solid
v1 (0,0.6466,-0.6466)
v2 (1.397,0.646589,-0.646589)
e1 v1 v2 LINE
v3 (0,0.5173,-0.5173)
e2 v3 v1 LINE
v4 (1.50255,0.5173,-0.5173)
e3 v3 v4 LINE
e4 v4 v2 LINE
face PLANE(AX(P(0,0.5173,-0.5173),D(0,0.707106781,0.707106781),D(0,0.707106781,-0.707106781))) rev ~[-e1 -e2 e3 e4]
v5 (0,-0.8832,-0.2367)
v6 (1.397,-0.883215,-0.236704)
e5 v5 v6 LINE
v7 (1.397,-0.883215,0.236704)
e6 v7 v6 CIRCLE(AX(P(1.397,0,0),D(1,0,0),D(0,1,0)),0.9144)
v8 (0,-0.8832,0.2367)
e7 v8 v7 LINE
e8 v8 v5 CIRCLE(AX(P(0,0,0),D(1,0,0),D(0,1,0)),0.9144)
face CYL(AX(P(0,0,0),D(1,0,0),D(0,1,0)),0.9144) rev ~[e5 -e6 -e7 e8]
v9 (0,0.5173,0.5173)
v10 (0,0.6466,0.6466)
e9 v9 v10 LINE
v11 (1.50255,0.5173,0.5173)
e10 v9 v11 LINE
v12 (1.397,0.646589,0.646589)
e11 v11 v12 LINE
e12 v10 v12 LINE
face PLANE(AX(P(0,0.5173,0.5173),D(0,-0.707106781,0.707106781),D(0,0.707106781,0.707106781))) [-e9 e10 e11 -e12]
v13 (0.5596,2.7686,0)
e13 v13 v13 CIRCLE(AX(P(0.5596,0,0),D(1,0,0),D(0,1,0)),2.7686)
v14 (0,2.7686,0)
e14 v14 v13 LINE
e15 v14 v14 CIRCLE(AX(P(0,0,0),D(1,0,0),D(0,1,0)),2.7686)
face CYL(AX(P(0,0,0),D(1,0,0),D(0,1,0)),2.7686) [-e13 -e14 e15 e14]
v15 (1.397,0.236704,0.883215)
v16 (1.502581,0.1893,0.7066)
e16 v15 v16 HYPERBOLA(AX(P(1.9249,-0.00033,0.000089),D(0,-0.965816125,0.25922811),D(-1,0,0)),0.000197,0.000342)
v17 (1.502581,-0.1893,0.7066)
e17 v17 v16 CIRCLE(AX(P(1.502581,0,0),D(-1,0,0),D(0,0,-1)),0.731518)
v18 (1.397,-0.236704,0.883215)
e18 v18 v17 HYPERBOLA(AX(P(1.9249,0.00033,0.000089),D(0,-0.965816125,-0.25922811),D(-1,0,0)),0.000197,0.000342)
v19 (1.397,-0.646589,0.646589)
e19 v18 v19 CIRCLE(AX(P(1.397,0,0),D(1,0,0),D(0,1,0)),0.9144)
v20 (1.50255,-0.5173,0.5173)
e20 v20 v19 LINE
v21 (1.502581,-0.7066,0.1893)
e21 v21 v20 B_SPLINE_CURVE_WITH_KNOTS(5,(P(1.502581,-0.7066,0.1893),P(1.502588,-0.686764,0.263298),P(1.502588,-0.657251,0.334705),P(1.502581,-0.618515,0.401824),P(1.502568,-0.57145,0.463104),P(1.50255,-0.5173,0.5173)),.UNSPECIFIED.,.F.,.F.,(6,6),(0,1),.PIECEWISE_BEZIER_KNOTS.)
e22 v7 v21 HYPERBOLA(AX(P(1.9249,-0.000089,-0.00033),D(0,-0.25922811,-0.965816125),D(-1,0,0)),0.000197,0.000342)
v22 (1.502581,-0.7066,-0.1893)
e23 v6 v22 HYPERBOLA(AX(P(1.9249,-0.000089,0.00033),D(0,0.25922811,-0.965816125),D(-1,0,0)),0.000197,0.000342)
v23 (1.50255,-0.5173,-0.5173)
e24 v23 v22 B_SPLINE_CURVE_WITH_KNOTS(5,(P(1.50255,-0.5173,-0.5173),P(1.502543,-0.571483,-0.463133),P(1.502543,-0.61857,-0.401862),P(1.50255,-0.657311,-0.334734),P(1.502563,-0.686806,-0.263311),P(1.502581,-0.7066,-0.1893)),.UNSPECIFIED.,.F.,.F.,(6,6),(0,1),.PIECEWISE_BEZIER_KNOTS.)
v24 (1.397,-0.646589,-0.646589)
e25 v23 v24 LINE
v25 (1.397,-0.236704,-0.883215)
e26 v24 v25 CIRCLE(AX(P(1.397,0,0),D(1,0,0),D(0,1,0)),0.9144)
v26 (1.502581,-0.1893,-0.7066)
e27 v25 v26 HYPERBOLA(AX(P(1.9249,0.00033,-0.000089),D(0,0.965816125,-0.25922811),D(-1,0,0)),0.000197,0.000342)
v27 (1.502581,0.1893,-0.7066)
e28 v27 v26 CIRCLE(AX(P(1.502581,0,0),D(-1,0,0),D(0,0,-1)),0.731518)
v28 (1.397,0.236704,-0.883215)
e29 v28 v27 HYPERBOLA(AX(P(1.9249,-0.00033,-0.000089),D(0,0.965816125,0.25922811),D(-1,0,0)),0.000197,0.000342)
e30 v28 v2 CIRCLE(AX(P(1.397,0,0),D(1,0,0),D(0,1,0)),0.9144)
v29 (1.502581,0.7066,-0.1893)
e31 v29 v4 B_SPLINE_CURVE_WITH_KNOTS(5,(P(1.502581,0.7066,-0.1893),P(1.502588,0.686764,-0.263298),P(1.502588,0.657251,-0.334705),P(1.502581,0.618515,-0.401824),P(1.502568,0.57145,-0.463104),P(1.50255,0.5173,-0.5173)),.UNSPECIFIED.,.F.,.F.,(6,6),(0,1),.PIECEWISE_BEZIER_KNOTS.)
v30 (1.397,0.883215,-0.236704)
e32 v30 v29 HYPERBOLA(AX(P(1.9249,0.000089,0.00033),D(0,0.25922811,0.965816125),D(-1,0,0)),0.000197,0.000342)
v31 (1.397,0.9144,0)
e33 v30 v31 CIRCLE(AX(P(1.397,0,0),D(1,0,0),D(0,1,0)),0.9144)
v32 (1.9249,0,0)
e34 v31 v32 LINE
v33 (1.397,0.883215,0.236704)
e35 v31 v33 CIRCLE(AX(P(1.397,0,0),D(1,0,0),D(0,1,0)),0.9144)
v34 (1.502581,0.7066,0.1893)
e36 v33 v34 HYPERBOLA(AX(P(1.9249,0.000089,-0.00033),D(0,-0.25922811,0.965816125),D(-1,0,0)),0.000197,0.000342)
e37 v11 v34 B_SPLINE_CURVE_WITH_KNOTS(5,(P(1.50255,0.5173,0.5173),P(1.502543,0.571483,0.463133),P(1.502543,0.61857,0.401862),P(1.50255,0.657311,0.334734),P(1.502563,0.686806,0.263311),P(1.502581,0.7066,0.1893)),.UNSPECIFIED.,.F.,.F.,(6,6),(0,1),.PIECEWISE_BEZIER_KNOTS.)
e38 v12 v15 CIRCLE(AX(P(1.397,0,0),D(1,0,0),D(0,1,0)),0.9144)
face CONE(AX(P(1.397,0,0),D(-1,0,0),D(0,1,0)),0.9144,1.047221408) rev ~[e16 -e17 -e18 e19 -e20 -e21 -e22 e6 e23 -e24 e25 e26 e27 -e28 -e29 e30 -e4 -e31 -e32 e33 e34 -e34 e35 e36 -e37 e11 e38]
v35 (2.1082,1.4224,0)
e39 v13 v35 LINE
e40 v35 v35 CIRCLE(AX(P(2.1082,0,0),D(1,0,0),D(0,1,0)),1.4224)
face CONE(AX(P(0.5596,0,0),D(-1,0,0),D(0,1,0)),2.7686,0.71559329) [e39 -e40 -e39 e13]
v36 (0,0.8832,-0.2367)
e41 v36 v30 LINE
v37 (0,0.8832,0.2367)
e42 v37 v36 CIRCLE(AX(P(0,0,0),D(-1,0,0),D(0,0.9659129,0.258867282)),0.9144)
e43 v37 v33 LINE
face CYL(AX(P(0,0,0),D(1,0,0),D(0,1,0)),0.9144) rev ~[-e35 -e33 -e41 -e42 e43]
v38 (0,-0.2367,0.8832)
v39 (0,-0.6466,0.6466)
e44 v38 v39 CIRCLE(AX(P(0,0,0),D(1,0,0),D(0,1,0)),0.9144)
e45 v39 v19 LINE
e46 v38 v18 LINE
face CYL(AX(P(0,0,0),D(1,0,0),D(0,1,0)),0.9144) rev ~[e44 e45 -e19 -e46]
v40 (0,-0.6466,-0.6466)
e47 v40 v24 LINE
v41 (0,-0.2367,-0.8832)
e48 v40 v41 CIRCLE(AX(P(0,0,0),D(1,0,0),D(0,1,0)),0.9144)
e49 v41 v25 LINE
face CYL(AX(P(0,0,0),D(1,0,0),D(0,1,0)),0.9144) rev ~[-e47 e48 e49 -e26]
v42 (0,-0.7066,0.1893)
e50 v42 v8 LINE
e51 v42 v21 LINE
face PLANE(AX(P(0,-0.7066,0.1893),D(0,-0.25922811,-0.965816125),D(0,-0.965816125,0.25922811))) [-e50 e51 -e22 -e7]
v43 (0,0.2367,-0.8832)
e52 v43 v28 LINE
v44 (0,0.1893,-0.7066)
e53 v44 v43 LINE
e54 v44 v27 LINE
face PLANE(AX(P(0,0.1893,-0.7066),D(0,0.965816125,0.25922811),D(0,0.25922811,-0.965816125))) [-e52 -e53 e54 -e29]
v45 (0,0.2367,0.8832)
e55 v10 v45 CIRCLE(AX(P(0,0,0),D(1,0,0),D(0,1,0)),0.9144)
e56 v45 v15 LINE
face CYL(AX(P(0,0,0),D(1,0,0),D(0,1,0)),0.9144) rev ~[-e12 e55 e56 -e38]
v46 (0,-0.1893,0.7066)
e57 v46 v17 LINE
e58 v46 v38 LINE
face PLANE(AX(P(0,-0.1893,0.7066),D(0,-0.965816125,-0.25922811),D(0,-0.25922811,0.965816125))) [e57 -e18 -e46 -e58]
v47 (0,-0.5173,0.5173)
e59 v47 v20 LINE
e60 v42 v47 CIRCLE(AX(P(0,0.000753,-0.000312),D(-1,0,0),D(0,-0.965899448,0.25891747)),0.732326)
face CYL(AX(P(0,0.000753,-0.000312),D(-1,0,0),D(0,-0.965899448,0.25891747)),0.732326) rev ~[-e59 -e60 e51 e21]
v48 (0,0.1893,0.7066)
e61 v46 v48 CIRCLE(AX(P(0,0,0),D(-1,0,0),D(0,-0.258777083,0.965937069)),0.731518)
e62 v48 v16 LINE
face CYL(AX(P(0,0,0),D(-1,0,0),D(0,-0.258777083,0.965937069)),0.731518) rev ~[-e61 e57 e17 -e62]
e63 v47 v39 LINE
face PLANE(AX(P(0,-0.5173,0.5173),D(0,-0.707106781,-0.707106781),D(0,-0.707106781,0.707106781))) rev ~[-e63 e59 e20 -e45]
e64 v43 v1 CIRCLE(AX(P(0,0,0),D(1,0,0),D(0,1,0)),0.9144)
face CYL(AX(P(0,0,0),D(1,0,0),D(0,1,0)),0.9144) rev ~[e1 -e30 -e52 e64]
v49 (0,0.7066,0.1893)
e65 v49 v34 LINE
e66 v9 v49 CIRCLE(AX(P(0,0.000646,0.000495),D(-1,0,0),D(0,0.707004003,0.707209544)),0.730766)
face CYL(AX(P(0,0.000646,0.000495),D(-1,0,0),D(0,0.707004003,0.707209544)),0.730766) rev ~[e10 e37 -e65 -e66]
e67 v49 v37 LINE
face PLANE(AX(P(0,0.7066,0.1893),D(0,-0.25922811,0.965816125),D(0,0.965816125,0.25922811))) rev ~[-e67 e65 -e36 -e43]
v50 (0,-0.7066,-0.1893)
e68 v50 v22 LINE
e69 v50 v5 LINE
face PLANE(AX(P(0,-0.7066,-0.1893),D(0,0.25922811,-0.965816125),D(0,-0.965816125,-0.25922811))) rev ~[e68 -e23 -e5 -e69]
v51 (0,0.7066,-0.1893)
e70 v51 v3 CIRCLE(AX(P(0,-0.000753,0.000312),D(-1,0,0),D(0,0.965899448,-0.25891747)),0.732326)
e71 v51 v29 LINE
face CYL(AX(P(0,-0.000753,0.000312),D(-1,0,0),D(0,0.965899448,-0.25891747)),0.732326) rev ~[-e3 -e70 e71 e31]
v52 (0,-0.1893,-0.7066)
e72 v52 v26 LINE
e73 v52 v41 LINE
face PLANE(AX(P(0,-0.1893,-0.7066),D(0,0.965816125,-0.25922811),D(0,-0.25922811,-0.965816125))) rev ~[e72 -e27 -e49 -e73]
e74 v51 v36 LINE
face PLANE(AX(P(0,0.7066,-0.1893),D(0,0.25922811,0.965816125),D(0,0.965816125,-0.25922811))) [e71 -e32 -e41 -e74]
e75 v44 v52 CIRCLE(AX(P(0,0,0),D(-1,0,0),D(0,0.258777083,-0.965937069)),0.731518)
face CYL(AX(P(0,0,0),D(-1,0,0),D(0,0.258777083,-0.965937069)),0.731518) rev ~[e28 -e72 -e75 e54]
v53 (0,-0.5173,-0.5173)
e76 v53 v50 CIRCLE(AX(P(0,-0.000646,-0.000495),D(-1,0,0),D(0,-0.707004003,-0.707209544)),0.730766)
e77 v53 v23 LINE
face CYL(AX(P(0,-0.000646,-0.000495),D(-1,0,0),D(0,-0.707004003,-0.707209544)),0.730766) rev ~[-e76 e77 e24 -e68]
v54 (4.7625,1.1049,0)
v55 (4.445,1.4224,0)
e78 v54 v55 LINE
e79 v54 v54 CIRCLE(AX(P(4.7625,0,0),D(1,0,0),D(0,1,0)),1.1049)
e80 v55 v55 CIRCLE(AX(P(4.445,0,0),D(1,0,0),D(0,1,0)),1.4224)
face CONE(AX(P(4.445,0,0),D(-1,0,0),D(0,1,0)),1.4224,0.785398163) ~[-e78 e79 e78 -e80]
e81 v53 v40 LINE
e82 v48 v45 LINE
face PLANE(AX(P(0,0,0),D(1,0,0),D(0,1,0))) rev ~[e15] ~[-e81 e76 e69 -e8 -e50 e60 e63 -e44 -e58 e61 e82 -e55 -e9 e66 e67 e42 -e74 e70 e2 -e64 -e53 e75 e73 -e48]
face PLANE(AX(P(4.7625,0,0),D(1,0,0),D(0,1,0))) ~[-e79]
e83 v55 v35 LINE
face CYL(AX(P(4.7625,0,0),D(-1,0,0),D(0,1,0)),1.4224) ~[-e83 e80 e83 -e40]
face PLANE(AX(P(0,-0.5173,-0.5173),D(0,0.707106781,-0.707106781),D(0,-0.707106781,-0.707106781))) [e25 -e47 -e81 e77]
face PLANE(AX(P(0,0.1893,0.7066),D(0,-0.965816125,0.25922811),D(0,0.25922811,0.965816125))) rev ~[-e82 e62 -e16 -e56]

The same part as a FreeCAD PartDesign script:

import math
import FreeCAD as App
import Part
import Sketcher

V = App.Vector
Q = App.Units.Quantity


def edges_at(feature, points):
    """Names of the edges that pass closest to the given points."""
    edges = feature.Shape.Edges
    near = lambda p: min(range(len(edges)), key=lambda i: edges[i].distToShape(Part.Vertex(*p))[0])
    return sorted({f"Edge{near(p) + 1}" for p in points})

doc = App.newDocument("Part")
body = doc.addObject("PartDesign::Body", "Body")

# Sketch on XY plane
sketch1 = body.newObject("Sketcher::SketchObject", "Sketch")
sketch1.AttachmentSupport = (doc.getObject("XY_Plane"), [""])
sketch1.MapMode = "FlatFace"
sketch1.addGeometry([
    Part.LineSegment(V(1.9, 0, 0), V(4.8, 0, 0)),  # 0
    Part.LineSegment(V(4.8, 0, 0), V(4.8, 1.4, 0)),  # 1
    Part.LineSegment(V(4.8, 1.4, 0), V(2.1, 1.4, 0)),  # 2
    Part.LineSegment(V(2.1, 1.4, 0), V(0.6, 2.8, 0)),  # 3
    Part.LineSegment(V(0.6, 2.8, 0), V(0, 2.8, 0)),  # 4
    Part.LineSegment(V(0, 2.8, 0), V(0, 0.9, 0)),  # 5
    Part.LineSegment(V(0, 0.9, 0), V(1.4, 0.9, 0)),  # 6
    Part.LineSegment(V(1.4, 0.9, 0), V(1.9, 0, 0)),  # 7
], False)
sketch1.addConstraint([
    Sketcher.Constraint("Coincident", 0, 2, 1, 1),
    Sketcher.Constraint("Coincident", 1, 2, 2, 1),
    Sketcher.Constraint("Coincident", 2, 2, 3, 1),
    Sketcher.Constraint("Coincident", 3, 2, 4, 1),
    Sketcher.Constraint("Coincident", 4, 2, 5, 1),
    Sketcher.Constraint("Coincident", 5, 2, 6, 1),
    Sketcher.Constraint("Coincident", 6, 2, 7, 1),
    Sketcher.Constraint("Coincident", 7, 2, 0, 1),
    Sketcher.Constraint("Horizontal", 0),
    Sketcher.Constraint("Vertical", 1),
    Sketcher.Constraint("Horizontal", 2),
    Sketcher.Constraint("Horizontal", 4),
    Sketcher.Constraint("Vertical", 5),
    Sketcher.Constraint("Horizontal", 6),
    Sketcher.Constraint("PointOnObject", 0, 2, -1),
    Sketcher.Constraint("PointOnObject", 4, 2, -2),
    Sketcher.Constraint("DistanceX", 6, 1, 6, 2, Q("0.055 in")),
    Sketcher.Constraint("DistanceX", -1, 1, 0, 2, Q("0.1875 in")),
    Sketcher.Constraint("DistanceX", -1, 1, 2, 2, Q("0.083 in")),
    Sketcher.Constraint("Angle", 3, Q("138.9995 deg")),
    Sketcher.Constraint("DistanceY", 1, 1, 1, 2, Q("0.056 in")),
    Sketcher.Constraint("DistanceY", 5, 2, 5, 1, Q("0.073 in")),
    Sketcher.Constraint("DistanceY", 5, 2, 2, 2, Q("0.02 in")),
    Sketcher.Constraint("DistanceX", 0, 1, 0, 2, 2.8376),
])
revolution = body.newObject("PartDesign::Revolution", "Revolution")
revolution.Profile = sketch1
revolution.ReferenceAxis = (sketch1, ["H_Axis"])
revolution.Angle = 360

# Sketch on YZ plane
sketch2 = body.newObject("Sketcher::SketchObject", "Sketch001")
sketch2.AttachmentSupport = (doc.getObject("YZ_Plane"), [""])
sketch2.MapMode = "FlatFace"
sketch2.addGeometry([
    Part.ArcOfCircle(Part.Circle(V(0, 0, 0), V(0, 0, 1), 0.73), math.radians(75), math.radians(105)),  # 0
    Part.LineSegment(V(-0.19, 0.71, 0), V(-0.24, 0.88, 0)),  # 1
    Part.ArcOfCircle(Part.Circle(V(0, 0, 0), V(0, 0, 1), 0.91), math.radians(75), math.radians(105)),  # 2
    Part.LineSegment(V(0.24, 0.88, 0), V(0.19, 0.71, 0)),  # 3
    Part.ArcOfCircle(Part.Circle(V(0, 0, 0), V(0, 0, 1), 0.73), math.radians(-105), math.radians(-75)),  # 4
    Part.LineSegment(V(0.19, -0.71, 0), V(0.24, -0.88, 0)),  # 5
    Part.ArcOfCircle(Part.Circle(V(0, 0, 0), V(0, 0, 1), 0.91), math.radians(-105), math.radians(-75)),  # 6
    Part.LineSegment(V(-0.24, -0.88, 0), V(-0.19, -0.71, 0)),  # 7
    Part.ArcOfCircle(Part.Circle(V(0, 0, 0), V(0, 0, 1), 0.91), math.radians(15), math.radians(45)),  # 8
    Part.LineSegment(V(0.88, 0.24, 0), V(0.71, 0.19, 0)),  # 9
    Part.ArcOfCircle(Part.Circle(V(0, 0, 0), V(0, 0, 1), 0.73), math.radians(15), math.radians(45)),  # 10
    Part.LineSegment(V(0.52, 0.52, 0), V(0.65, 0.65, 0)),  # 11
    Part.LineSegment(V(0.71, -0.19, 0), V(0.88, -0.24, 0)),  # 12
    Part.ArcOfCircle(Part.Circle(V(0, 0, 0), V(0, 0, 1), 0.91), math.radians(-45), math.radians(-15)),  # 13
    Part.LineSegment(V(0.65, -0.65, 0), V(0.52, -0.52, 0)),  # 14
    Part.ArcOfCircle(Part.Circle(V(0, 0, 0), V(0, 0, 1), 0.73), math.radians(-45), math.radians(-15)),  # 15
    Part.ArcOfCircle(Part.Circle(V(0, 0, 0), V(0, 0, 1), 0.91), math.radians(-165), math.radians(-135)),  # 16
    Part.LineSegment(V(-0.88, -0.24, 0), V(-0.71, -0.19, 0)),  # 17
    Part.ArcOfCircle(Part.Circle(V(0, 0, 0), V(0, 0, 1), 0.73), math.radians(-165), math.radians(-135)),  # 18
    Part.LineSegment(V(-0.52, -0.52, 0), V(-0.65, -0.65, 0)),  # 19
    Part.LineSegment(V(-0.71, 0.19, 0), V(-0.88, 0.24, 0)),  # 20
    Part.ArcOfCircle(Part.Circle(V(0, 0, 0), V(0, 0, 1), 0.91), math.radians(135), math.radians(165)),  # 21
    Part.LineSegment(V(-0.65, 0.65, 0), V(-0.52, 0.52, 0)),  # 22
    Part.ArcOfCircle(Part.Circle(V(0, 0, 0), V(0, 0, 1), 0.73), math.radians(135), math.radians(165)),  # 23
], False)
sketch2.addConstraint([
    Sketcher.Constraint("Coincident", 0, 2, 1, 1),
    Sketcher.Constraint("Coincident", 1, 2, 2, 2),
    Sketcher.Constraint("Coincident", 2, 1, 3, 1),
    Sketcher.Constraint("Coincident", 3, 2, 0, 1),
    Sketcher.Constraint("Coincident", 4, 2, 5, 1),
    Sketcher.Constraint("Coincident", 5, 2, 6, 2),
    Sketcher.Constraint("Coincident", 6, 1, 7, 1),
    Sketcher.Constraint("Coincident", 7, 2, 4, 1),
    Sketcher.Constraint("Coincident", 8, 1, 9, 1),
    Sketcher.Constraint("Coincident", 9, 2, 10, 1),
    Sketcher.Constraint("Coincident", 10, 2, 11, 1),
    Sketcher.Constraint("Coincident", 11, 2, 8, 2),
    Sketcher.Constraint("Coincident", 12, 2, 13, 2),
    Sketcher.Constraint("Coincident", 13, 1, 14, 1),
    Sketcher.Constraint("Coincident", 14, 2, 15, 1),
    Sketcher.Constraint("Coincident", 15, 2, 12, 1),
    Sketcher.Constraint("Coincident", 16, 1, 17, 1),
    Sketcher.Constraint("Coincident", 17, 2, 18, 1),
    Sketcher.Constraint("Coincident", 18, 2, 19, 1),
    Sketcher.Constraint("Coincident", 19, 2, 16, 2),
    Sketcher.Constraint("Coincident", 20, 2, 21, 2),
    Sketcher.Constraint("Coincident", 21, 1, 22, 1),
    Sketcher.Constraint("Coincident", 22, 2, 23, 1),
    Sketcher.Constraint("Coincident", 23, 2, 20, 1),
    Sketcher.Constraint("Coincident", 0, 3, -1, 1),
    Sketcher.Constraint("Coincident", 2, 3, -1, 1),
    Sketcher.Constraint("Coincident", 4, 3, -1, 1),
    Sketcher.Constraint("Coincident", 6, 3, -1, 1),
    Sketcher.Constraint("Coincident", 8, 3, -1, 1),
    Sketcher.Constraint("Coincident", 10, 3, -1, 1),
    Sketcher.Constraint("Coincident", 13, 3, -1, 1),
    Sketcher.Constraint("Coincident", 15, 3, -1, 1),
    Sketcher.Constraint("Coincident", 16, 3, -1, 1),
    Sketcher.Constraint("Coincident", 18, 3, -1, 1),
    Sketcher.Constraint("Coincident", 21, 3, -1, 1),
    Sketcher.Constraint("Coincident", 23, 3, -1, 1),
    Sketcher.Constraint("Equal", 0, 4),
    Sketcher.Constraint("Equal", 2, 6),
    Sketcher.Constraint("Equal", 6, 8),
    Sketcher.Constraint("Equal", 4, 10),
    Sketcher.Constraint("Equal", 8, 13),
    Sketcher.Constraint("Equal", 10, 15),
    Sketcher.Constraint("Equal", 13, 16),
    Sketcher.Constraint("Equal", 15, 18),
    Sketcher.Constraint("Equal", 16, 21),
    Sketcher.Constraint("Equal", 18, 23),
    Sketcher.Constraint("Parallel", 1, 5),
    Sketcher.Constraint("Parallel", 3, 7),
    Sketcher.Constraint("Perpendicular", 5, 9),
    Sketcher.Constraint("Perpendicular", 7, 12),
    Sketcher.Constraint("Perpendicular", 11, 14),
    Sketcher.Constraint("Parallel", 9, 17),
    Sketcher.Constraint("Perpendicular", 14, 19),
    Sketcher.Constraint("Parallel", 12, 20),
    Sketcher.Constraint("Perpendicular", 19, 22),
    Sketcher.Constraint("Horizontal", 1, 2, 2, 1),
    Sketcher.Constraint("Horizontal", 0, 2, 3, 2),
    Sketcher.Constraint("Horizontal", 5, 2, 6, 1),
    Sketcher.Constraint("Horizontal", 12, 2, 16, 1),
    Sketcher.Constraint("Horizontal", 14, 2, 18, 2),
    Sketcher.Constraint("Horizontal", 13, 1, 19, 2),
    Sketcher.Constraint("Horizontal", 8, 1, 20, 2),
    Sketcher.Constraint("Horizontal", 11, 2, 21, 1),
    Sketcher.Constraint("Vertical", 3, 2, 4, 2),
    Sketcher.Constraint("Vertical", 8, 1, 12, 2),
    Sketcher.Constraint("Vertical", 11, 2, 13, 1),
    Sketcher.Constraint("Radius", 2, Q("0.036 in")),
    Sketcher.Constraint("Radius", 0, Q("0.0288 in")),
    Sketcher.Constraint("DistanceX", 3, 2, 11, 2, Q("0.018 in")),
    Sketcher.Constraint("DistanceY", 9, 2, 11, 2, Q("0.018 in")),
    Sketcher.Constraint("DistanceX", 0, 2, 3, 2, Q("0.0149 in")),
    Sketcher.Constraint("DistanceY", 8, 1, 3, 2, Q("0.0185 in")),
])
pad1 = body.newObject("PartDesign::Pad", "Pad")
pad1.Profile = sketch2
pad1.Type = "UpToFirst"
doc.recompute()

chamfer = body.newObject("PartDesign::Chamfer", "Chamfer")
chamfer.Base = (pad1, edges_at(pad1, [(4.763, -1.422, 0)]))
chamfer.ChamferType = "Two distances"
chamfer.Size = Q("0.0125 in")
chamfer.Size2 = Q("0.0125 in")

doc.recompute()
